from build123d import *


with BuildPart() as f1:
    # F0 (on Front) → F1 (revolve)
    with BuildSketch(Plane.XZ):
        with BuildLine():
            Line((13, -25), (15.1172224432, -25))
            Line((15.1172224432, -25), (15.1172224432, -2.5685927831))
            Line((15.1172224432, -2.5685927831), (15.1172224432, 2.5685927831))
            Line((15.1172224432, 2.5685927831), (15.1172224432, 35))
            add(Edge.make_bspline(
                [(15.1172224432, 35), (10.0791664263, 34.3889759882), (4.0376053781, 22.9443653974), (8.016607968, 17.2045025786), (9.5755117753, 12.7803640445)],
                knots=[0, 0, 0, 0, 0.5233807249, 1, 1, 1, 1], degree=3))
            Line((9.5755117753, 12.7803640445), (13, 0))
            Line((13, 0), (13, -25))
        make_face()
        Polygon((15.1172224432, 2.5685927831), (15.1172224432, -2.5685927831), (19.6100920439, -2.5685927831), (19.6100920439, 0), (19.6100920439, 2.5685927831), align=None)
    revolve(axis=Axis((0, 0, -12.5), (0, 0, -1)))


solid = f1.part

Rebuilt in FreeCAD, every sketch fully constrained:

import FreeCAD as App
import Part
import Sketcher
from FreeCAD import Vector
Q = App.Units.Quantity

doc = App.newDocument("Part")
body = doc.addObject("PartDesign::Body", "Body")

# Sketch on XZ plane
sketch1 = body.newObject("Sketcher::SketchObject", "Sketch")
sketch1.AttachmentSupport = (doc.getObject("XZ_Plane"), [""])
sketch1.MapMode = "FlatFace"
sketch1.addGeometry([
    Part.LineSegment(Vector(13, -25, 0), Vector(15.117222, -25, 0)),  # 0
    Part.LineSegment(Vector(15.117222, -25, 0), Vector(15.117222, -2.568593, 0)),  # 1
    Part.LineSegment(Vector(15.117222, -2.568593, 0), Vector(19.610092, -2.568593, 0)),  # 2
    Part.LineSegment(Vector(19.610092, -2.568593, 0), Vector(19.610092, 2.568593, 0)),  # 3
    Part.LineSegment(Vector(19.610092, 2.568593, 0), Vector(15.117222, 2.568593, 0)),  # 4
    Part.LineSegment(Vector(15.117222, 2.568593, 0), Vector(15.117222, 35, 0)),  # 5
    Part.BSplineCurve([Vector(15.117222, 35, 0), Vector(10.079166, 34.388976, 0), Vector(4.037605, 22.944365, 0), Vector(8.016608, 17.204503, 0), Vector(9.575512, 12.780364, 0)], [4, 1, 4], [0, 0.523380725, 1], False, 3, [1, 1, 1, 1, 1], False),  # 6
    Part.LineSegment(Vector(9.575512, 12.780364, 0), Vector(13, 0, 0)),  # 7
    Part.LineSegment(Vector(13, 0, 0), Vector(13, -25, 0)),  # 8
], False)
sketch1.addConstraint([
    Sketcher.Constraint("Block", 6),
    Sketcher.Constraint("Coincident", 0, 2, 1, 1),
    Sketcher.Constraint("Coincident", 1, 2, 2, 1),
    Sketcher.Constraint("Coincident", 2, 2, 3, 1),
    Sketcher.Constraint("Coincident", 3, 2, 4, 1),
    Sketcher.Constraint("Coincident", 4, 2, 5, 1),
    Sketcher.Constraint("Coincident", 5, 2, 6, 1),
    Sketcher.Constraint("Coincident", 6, 2, 7, 1),
    Sketcher.Constraint("Coincident", 7, 2, 8, 1),
    Sketcher.Constraint("Coincident", 8, 2, 0, 1),
    Sketcher.Constraint("Horizontal", 0),
    Sketcher.Constraint("Vertical", 1),
    Sketcher.Constraint("Horizontal", 2),
    Sketcher.Constraint("Vertical", 3),
    Sketcher.Constraint("Horizontal", 4),
    Sketcher.Constraint("Vertical", 5),
    Sketcher.Constraint("Vertical", 8),
    Sketcher.Constraint("PointOnObject", 7, 2, -1),
    Sketcher.Constraint("DistanceY", 8, 2, 8, 1, Q("25 mm")),
    Sketcher.Constraint("DistanceX", -1, 1, 7, 2, Q("13 mm")),
    Sketcher.Constraint("DistanceX", 2, 1, 2, 2, Q("4.49287 mm")),
    Sketcher.Constraint("DistanceX", 4, 2, 4, 1, Q("4.49287 mm")),
    Sketcher.Constraint("DistanceY", 1, 1, 1, 2, Q("22.431407 mm")),
    Sketcher.Constraint("DistanceY", 3, 1, 3, 2, Q("5.137186 mm")),
])
revolution = body.newObject("PartDesign::Revolution", "Revolution")
revolution.Profile = sketch1
revolution.ReferenceAxis = (sketch1, ["V_Axis"])
revolution.Angle = 360

doc.recompute()
